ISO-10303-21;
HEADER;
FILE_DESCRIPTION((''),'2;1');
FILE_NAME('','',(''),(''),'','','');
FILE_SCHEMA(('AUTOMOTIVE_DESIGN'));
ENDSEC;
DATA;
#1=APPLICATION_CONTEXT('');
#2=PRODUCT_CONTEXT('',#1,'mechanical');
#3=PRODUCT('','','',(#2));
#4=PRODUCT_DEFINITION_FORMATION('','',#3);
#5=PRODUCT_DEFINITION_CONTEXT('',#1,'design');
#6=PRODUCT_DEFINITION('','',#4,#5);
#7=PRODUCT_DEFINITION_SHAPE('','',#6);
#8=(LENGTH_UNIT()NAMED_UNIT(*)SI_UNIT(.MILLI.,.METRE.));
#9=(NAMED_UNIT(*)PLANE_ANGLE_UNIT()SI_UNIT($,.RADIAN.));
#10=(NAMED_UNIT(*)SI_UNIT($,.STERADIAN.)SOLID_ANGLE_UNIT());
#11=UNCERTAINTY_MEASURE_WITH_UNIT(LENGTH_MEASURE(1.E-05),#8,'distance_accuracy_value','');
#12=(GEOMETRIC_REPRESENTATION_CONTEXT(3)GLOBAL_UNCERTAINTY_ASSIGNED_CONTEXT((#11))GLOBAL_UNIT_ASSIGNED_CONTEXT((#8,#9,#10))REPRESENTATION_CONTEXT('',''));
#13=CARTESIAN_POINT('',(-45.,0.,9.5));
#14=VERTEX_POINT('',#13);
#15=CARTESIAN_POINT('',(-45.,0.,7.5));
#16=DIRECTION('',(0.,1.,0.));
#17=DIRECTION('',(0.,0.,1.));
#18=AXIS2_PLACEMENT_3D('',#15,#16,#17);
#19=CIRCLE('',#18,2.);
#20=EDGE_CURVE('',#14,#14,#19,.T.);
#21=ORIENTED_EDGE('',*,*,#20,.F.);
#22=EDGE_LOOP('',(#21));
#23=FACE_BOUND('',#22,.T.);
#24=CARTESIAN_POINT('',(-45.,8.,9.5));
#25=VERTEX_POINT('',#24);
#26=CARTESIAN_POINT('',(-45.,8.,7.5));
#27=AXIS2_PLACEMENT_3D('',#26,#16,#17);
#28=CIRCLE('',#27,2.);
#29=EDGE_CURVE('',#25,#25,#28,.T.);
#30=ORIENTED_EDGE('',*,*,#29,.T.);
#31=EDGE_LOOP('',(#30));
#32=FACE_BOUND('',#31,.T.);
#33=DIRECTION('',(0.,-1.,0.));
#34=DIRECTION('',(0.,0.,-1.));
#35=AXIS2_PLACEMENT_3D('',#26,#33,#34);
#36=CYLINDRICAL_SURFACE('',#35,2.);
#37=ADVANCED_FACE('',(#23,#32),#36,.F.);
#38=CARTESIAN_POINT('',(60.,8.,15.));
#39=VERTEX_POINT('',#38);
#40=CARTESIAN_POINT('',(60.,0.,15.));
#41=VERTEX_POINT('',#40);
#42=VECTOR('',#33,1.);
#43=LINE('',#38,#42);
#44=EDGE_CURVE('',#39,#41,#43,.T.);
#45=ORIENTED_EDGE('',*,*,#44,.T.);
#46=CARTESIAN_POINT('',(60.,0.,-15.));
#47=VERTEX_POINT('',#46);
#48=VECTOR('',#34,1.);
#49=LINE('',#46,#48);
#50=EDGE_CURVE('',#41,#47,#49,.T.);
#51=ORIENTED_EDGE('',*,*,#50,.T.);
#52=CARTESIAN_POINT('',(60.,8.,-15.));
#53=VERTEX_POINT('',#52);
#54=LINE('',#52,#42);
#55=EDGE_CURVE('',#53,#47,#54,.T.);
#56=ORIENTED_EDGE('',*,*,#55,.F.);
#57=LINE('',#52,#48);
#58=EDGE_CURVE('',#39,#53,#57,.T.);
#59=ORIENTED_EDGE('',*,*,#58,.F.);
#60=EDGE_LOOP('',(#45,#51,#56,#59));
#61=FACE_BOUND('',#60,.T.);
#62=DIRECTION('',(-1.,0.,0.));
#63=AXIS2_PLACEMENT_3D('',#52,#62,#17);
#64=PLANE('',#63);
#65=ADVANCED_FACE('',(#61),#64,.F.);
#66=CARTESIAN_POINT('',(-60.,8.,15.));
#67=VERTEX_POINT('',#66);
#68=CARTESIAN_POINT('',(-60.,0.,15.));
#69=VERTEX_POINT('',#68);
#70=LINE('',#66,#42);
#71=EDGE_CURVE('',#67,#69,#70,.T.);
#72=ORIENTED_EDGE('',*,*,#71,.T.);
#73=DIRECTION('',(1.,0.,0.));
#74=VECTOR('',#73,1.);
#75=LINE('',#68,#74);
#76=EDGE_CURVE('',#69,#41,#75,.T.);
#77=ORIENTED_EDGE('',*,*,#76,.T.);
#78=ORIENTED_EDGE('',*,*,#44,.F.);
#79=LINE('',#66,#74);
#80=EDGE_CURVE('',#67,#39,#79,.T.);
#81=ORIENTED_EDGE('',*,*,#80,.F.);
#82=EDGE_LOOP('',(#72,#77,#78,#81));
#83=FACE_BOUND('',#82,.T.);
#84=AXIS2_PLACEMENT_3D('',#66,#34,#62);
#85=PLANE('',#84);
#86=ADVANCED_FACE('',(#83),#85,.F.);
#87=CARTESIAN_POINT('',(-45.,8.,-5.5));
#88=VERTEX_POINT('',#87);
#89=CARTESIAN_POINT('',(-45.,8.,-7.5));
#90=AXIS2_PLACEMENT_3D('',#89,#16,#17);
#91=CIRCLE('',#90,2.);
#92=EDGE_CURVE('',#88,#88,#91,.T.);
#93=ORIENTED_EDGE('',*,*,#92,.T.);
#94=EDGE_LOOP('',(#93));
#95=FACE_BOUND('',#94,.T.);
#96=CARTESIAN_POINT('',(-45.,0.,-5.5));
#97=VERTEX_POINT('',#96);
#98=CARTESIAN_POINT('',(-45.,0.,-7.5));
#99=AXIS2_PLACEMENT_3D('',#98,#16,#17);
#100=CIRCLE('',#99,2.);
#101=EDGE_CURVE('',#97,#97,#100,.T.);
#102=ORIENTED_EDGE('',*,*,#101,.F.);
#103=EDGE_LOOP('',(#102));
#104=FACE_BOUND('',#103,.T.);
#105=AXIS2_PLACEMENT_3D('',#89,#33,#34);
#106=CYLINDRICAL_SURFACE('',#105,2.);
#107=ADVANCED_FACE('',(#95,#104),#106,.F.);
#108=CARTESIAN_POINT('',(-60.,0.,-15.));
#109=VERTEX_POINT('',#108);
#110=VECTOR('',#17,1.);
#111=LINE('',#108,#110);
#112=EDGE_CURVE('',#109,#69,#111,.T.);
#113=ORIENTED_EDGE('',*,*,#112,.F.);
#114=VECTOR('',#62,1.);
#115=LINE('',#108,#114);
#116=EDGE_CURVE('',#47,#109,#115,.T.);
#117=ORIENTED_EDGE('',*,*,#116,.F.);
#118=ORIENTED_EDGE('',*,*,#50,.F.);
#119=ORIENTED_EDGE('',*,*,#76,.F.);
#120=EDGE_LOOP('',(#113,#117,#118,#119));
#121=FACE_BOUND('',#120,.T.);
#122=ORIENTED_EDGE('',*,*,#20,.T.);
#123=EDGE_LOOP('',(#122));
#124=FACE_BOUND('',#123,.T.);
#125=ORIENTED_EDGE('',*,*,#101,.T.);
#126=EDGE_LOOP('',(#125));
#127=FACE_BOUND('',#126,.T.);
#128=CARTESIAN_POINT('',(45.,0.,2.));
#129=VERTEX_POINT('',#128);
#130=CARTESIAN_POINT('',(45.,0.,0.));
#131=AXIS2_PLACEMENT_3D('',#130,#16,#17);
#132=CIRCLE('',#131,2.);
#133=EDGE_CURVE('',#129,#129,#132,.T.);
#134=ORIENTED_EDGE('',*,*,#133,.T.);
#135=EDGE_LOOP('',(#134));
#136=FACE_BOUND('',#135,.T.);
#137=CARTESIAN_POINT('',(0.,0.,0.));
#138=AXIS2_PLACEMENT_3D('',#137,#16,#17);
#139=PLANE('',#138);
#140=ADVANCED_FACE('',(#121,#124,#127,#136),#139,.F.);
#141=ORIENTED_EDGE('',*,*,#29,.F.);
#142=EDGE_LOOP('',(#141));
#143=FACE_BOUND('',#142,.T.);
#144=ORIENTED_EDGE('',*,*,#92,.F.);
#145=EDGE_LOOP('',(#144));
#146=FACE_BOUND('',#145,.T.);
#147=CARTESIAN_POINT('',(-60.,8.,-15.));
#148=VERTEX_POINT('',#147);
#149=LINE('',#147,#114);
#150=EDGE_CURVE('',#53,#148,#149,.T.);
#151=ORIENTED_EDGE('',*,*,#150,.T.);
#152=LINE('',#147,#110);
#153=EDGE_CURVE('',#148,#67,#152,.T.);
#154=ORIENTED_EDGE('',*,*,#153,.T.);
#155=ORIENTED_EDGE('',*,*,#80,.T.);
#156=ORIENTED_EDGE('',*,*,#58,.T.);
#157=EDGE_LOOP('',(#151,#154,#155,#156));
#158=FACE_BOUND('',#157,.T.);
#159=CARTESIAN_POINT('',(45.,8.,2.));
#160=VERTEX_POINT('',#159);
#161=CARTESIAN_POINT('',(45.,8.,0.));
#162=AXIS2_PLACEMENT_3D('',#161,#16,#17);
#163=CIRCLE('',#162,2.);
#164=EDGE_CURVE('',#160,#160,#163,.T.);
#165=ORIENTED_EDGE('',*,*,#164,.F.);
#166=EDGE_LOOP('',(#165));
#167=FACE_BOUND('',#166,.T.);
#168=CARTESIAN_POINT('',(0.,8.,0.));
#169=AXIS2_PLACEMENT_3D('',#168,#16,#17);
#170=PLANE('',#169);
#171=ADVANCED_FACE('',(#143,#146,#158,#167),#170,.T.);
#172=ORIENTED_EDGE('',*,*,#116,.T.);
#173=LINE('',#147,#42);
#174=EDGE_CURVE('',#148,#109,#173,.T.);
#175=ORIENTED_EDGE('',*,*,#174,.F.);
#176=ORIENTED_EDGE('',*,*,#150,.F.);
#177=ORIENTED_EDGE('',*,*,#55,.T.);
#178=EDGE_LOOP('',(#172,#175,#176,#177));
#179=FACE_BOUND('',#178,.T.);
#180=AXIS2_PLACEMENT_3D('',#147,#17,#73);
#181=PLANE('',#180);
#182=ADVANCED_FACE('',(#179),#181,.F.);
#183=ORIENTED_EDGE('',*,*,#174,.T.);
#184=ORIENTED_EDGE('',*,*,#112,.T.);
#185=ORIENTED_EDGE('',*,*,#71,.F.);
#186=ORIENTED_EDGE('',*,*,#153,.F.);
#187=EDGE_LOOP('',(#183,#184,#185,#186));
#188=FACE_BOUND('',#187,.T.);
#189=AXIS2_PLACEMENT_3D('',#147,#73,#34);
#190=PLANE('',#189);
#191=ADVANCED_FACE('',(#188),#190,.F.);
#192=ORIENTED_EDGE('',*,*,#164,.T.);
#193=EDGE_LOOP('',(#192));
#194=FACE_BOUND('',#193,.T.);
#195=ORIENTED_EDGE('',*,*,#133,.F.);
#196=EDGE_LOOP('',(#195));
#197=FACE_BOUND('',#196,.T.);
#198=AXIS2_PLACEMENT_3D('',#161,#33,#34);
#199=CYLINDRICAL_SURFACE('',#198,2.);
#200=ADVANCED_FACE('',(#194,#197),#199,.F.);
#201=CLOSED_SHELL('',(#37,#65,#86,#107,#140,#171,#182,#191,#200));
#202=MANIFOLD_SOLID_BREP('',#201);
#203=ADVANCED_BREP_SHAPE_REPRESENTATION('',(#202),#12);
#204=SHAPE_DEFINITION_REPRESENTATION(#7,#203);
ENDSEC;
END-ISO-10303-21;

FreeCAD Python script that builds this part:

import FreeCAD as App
import Part
import Sketcher

V = App.Vector
Q = App.Units.Quantity

doc = App.newDocument("Part")
body = doc.addObject("PartDesign::Body", "Body")

# Sketch on XZ plane
sketch1 = body.newObject("Sketcher::SketchObject", "Sketch")
sketch1.AttachmentSupport = (doc.getObject("XZ_Plane"), [""])
sketch1.MapMode = "FlatFace"
sketch1.addGeometry([
    Part.LineSegment(V(-60, -15, 0), V(-60, 15, 0)),  # 0
    Part.LineSegment(V(-60, 15, 0), V(60, 15, 0)),  # 1
    Part.LineSegment(V(60, 15, 0), V(60, -15, 0)),  # 2
    Part.LineSegment(V(60, -15, 0), V(-60, -15, 0)),  # 3
    Part.Circle(V(-45, 7.5, 0), V(0, 0, 1), 2),  # 4
    Part.Circle(V(-45, -7.5, 0), V(0, 0, 1), 2),  # 5
    Part.Circle(V(45, 0, 0), V(0, 0, 1), 2),  # 6
], False)
sketch1.addConstraint([
    Sketcher.Constraint("Coincident", 0, 2, 1, 1),
    Sketcher.Constraint("Coincident", 1, 2, 2, 1),
    Sketcher.Constraint("Coincident", 2, 2, 3, 1),
    Sketcher.Constraint("Coincident", 3, 2, 0, 1),
    Sketcher.Constraint("Vertical", 0),
    Sketcher.Constraint("Horizontal", 1),
    Sketcher.Constraint("Vertical", 2),
    Sketcher.Constraint("Horizontal", 3),
    Sketcher.Constraint("Equal", 4, 5),
    Sketcher.Constraint("Equal", 5, 6),
    Sketcher.Constraint("Symmetric", 0, 2, 2, 2, -1, 1),
    Sketcher.Constraint("Symmetric", 4, 3, 5, 3, -1),
    Sketcher.Constraint("PointOnObject", 6, 3, -1),
    Sketcher.Constraint("Diameter", 4, Q("4 mm")),
    Sketcher.Constraint("DistanceX", 1, 1, 1, 2, Q("120 mm")),
    Sketcher.Constraint("DistanceY", 0, 1, 0, 2, Q("30 mm")),
    Sketcher.Constraint("DistanceX", 4, 3, -1, 1, Q("45 mm")),
    Sketcher.Constraint("DistanceX", -1, 1, 6, 3, Q("45 mm")),
    Sketcher.Constraint("DistanceY", 5, 3, 4, 3, Q("15 mm")),
])
pad1 = body.newObject("PartDesign::Pad", "Pad")
pad1.Profile = sketch1
pad1.Length = 8
pad1.Reversed = True

doc.recompute()
